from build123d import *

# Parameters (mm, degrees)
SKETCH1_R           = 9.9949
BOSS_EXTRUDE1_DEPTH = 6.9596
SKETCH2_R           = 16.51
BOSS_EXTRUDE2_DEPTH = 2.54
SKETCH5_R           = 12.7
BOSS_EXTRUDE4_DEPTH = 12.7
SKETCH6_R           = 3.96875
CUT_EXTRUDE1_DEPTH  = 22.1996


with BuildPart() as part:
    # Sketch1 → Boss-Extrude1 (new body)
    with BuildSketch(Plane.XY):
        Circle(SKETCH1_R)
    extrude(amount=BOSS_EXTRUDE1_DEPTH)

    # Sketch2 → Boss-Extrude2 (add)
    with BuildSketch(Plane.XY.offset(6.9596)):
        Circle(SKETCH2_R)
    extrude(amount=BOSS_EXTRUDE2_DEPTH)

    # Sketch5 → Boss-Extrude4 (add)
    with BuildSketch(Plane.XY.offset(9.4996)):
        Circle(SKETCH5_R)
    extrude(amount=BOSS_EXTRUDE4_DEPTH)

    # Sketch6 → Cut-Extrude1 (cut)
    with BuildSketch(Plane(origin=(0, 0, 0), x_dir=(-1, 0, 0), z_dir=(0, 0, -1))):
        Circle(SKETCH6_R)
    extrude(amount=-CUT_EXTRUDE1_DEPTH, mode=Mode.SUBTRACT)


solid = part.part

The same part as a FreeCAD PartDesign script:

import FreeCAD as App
import Part
import Sketcher

V = App.Vector
Q = App.Units.Quantity

doc = App.newDocument("Part")
body = doc.addObject("PartDesign::Body", "Body")

sketch1 = body.newObject("Sketcher::SketchObject", "Sketch")
sketch1.AttachmentSupport = (doc.getObject("XY_Plane"), [""])
sketch1.MapMode = "FlatFace"
sketch1.addGeometry(Part.Circle(V(0, 0, 0), V(0, 0, 1), 9.9949), False)
sketch1.addConstraint([
    Sketcher.Constraint("Coincident", 0, 3, -1, 1),
    Sketcher.Constraint("Diameter", 0, Q("0.787 in")),
])
pad1 = body.newObject("PartDesign::Pad", "Pad")
pad1.Profile = sketch1
pad1.Length = Q("0.274 in")

sketch2 = body.newObject("Sketcher::SketchObject", "Sketch001")
sketch2.AttachmentSupport = (doc.getObject("XY_Plane"), [""])
sketch2.MapMode = "FlatFace"
sketch2.AttachmentOffset = App.Placement(V(0, 0, 0.274 * 25.4), App.Rotation())
sketch2.addGeometry(Part.Circle(V(0, 0, 0), V(0, 0, 1), 16.51), False)
sketch2.addConstraint([
    Sketcher.Constraint("Coincident", 0, 3, -1, 1),
    Sketcher.Constraint("Diameter", 0, Q("1.3 in")),
])
pad2 = body.newObject("PartDesign::Pad", "Pad001")
pad2.Profile = sketch2
pad2.Length = Q("0.1 in")

sketch3 = body.newObject("Sketcher::SketchObject", "Sketch002")
sketch3.AttachmentSupport = (doc.getObject("XY_Plane"), [""])
sketch3.MapMode = "FlatFace"
sketch3.AttachmentOffset = App.Placement(V(0, 0, 0.374 * 25.4), App.Rotation())
sketch3.addGeometry(Part.Circle(V(0, 0, 0), V(0, 0, 1), 12.7), False)
sketch3.addConstraint([
    Sketcher.Constraint("Coincident", 0, 3, -1, 1),
    Sketcher.Constraint("Diameter", 0, Q("1 in")),
])
pad3 = body.newObject("PartDesign::Pad", "Pad002")
pad3.Profile = sketch3
pad3.Length = Q("0.5 in")

sketch4 = body.newObject("Sketcher::SketchObject", "Sketch003")
sketch4.AttachmentSupport = (doc.getObject("XY_Plane"), [""])
sketch4.MapMode = "FlatFace"
sketch4.addGeometry(Part.Circle(V(0, 0, 0), V(0, 0, 1), 3.96875), False)
sketch4.addConstraint([
    Sketcher.Constraint("Coincident", 0, 3, -1, 1),
    Sketcher.Constraint("Diameter", 0, Q("0.3125 in")),
])
pocket1 = body.newObject("PartDesign::Pocket", "Pocket")
pocket1.Profile = sketch4
pocket1.Length = Q("0.874 in")
pocket1.Reversed = True

doc.recompute()
